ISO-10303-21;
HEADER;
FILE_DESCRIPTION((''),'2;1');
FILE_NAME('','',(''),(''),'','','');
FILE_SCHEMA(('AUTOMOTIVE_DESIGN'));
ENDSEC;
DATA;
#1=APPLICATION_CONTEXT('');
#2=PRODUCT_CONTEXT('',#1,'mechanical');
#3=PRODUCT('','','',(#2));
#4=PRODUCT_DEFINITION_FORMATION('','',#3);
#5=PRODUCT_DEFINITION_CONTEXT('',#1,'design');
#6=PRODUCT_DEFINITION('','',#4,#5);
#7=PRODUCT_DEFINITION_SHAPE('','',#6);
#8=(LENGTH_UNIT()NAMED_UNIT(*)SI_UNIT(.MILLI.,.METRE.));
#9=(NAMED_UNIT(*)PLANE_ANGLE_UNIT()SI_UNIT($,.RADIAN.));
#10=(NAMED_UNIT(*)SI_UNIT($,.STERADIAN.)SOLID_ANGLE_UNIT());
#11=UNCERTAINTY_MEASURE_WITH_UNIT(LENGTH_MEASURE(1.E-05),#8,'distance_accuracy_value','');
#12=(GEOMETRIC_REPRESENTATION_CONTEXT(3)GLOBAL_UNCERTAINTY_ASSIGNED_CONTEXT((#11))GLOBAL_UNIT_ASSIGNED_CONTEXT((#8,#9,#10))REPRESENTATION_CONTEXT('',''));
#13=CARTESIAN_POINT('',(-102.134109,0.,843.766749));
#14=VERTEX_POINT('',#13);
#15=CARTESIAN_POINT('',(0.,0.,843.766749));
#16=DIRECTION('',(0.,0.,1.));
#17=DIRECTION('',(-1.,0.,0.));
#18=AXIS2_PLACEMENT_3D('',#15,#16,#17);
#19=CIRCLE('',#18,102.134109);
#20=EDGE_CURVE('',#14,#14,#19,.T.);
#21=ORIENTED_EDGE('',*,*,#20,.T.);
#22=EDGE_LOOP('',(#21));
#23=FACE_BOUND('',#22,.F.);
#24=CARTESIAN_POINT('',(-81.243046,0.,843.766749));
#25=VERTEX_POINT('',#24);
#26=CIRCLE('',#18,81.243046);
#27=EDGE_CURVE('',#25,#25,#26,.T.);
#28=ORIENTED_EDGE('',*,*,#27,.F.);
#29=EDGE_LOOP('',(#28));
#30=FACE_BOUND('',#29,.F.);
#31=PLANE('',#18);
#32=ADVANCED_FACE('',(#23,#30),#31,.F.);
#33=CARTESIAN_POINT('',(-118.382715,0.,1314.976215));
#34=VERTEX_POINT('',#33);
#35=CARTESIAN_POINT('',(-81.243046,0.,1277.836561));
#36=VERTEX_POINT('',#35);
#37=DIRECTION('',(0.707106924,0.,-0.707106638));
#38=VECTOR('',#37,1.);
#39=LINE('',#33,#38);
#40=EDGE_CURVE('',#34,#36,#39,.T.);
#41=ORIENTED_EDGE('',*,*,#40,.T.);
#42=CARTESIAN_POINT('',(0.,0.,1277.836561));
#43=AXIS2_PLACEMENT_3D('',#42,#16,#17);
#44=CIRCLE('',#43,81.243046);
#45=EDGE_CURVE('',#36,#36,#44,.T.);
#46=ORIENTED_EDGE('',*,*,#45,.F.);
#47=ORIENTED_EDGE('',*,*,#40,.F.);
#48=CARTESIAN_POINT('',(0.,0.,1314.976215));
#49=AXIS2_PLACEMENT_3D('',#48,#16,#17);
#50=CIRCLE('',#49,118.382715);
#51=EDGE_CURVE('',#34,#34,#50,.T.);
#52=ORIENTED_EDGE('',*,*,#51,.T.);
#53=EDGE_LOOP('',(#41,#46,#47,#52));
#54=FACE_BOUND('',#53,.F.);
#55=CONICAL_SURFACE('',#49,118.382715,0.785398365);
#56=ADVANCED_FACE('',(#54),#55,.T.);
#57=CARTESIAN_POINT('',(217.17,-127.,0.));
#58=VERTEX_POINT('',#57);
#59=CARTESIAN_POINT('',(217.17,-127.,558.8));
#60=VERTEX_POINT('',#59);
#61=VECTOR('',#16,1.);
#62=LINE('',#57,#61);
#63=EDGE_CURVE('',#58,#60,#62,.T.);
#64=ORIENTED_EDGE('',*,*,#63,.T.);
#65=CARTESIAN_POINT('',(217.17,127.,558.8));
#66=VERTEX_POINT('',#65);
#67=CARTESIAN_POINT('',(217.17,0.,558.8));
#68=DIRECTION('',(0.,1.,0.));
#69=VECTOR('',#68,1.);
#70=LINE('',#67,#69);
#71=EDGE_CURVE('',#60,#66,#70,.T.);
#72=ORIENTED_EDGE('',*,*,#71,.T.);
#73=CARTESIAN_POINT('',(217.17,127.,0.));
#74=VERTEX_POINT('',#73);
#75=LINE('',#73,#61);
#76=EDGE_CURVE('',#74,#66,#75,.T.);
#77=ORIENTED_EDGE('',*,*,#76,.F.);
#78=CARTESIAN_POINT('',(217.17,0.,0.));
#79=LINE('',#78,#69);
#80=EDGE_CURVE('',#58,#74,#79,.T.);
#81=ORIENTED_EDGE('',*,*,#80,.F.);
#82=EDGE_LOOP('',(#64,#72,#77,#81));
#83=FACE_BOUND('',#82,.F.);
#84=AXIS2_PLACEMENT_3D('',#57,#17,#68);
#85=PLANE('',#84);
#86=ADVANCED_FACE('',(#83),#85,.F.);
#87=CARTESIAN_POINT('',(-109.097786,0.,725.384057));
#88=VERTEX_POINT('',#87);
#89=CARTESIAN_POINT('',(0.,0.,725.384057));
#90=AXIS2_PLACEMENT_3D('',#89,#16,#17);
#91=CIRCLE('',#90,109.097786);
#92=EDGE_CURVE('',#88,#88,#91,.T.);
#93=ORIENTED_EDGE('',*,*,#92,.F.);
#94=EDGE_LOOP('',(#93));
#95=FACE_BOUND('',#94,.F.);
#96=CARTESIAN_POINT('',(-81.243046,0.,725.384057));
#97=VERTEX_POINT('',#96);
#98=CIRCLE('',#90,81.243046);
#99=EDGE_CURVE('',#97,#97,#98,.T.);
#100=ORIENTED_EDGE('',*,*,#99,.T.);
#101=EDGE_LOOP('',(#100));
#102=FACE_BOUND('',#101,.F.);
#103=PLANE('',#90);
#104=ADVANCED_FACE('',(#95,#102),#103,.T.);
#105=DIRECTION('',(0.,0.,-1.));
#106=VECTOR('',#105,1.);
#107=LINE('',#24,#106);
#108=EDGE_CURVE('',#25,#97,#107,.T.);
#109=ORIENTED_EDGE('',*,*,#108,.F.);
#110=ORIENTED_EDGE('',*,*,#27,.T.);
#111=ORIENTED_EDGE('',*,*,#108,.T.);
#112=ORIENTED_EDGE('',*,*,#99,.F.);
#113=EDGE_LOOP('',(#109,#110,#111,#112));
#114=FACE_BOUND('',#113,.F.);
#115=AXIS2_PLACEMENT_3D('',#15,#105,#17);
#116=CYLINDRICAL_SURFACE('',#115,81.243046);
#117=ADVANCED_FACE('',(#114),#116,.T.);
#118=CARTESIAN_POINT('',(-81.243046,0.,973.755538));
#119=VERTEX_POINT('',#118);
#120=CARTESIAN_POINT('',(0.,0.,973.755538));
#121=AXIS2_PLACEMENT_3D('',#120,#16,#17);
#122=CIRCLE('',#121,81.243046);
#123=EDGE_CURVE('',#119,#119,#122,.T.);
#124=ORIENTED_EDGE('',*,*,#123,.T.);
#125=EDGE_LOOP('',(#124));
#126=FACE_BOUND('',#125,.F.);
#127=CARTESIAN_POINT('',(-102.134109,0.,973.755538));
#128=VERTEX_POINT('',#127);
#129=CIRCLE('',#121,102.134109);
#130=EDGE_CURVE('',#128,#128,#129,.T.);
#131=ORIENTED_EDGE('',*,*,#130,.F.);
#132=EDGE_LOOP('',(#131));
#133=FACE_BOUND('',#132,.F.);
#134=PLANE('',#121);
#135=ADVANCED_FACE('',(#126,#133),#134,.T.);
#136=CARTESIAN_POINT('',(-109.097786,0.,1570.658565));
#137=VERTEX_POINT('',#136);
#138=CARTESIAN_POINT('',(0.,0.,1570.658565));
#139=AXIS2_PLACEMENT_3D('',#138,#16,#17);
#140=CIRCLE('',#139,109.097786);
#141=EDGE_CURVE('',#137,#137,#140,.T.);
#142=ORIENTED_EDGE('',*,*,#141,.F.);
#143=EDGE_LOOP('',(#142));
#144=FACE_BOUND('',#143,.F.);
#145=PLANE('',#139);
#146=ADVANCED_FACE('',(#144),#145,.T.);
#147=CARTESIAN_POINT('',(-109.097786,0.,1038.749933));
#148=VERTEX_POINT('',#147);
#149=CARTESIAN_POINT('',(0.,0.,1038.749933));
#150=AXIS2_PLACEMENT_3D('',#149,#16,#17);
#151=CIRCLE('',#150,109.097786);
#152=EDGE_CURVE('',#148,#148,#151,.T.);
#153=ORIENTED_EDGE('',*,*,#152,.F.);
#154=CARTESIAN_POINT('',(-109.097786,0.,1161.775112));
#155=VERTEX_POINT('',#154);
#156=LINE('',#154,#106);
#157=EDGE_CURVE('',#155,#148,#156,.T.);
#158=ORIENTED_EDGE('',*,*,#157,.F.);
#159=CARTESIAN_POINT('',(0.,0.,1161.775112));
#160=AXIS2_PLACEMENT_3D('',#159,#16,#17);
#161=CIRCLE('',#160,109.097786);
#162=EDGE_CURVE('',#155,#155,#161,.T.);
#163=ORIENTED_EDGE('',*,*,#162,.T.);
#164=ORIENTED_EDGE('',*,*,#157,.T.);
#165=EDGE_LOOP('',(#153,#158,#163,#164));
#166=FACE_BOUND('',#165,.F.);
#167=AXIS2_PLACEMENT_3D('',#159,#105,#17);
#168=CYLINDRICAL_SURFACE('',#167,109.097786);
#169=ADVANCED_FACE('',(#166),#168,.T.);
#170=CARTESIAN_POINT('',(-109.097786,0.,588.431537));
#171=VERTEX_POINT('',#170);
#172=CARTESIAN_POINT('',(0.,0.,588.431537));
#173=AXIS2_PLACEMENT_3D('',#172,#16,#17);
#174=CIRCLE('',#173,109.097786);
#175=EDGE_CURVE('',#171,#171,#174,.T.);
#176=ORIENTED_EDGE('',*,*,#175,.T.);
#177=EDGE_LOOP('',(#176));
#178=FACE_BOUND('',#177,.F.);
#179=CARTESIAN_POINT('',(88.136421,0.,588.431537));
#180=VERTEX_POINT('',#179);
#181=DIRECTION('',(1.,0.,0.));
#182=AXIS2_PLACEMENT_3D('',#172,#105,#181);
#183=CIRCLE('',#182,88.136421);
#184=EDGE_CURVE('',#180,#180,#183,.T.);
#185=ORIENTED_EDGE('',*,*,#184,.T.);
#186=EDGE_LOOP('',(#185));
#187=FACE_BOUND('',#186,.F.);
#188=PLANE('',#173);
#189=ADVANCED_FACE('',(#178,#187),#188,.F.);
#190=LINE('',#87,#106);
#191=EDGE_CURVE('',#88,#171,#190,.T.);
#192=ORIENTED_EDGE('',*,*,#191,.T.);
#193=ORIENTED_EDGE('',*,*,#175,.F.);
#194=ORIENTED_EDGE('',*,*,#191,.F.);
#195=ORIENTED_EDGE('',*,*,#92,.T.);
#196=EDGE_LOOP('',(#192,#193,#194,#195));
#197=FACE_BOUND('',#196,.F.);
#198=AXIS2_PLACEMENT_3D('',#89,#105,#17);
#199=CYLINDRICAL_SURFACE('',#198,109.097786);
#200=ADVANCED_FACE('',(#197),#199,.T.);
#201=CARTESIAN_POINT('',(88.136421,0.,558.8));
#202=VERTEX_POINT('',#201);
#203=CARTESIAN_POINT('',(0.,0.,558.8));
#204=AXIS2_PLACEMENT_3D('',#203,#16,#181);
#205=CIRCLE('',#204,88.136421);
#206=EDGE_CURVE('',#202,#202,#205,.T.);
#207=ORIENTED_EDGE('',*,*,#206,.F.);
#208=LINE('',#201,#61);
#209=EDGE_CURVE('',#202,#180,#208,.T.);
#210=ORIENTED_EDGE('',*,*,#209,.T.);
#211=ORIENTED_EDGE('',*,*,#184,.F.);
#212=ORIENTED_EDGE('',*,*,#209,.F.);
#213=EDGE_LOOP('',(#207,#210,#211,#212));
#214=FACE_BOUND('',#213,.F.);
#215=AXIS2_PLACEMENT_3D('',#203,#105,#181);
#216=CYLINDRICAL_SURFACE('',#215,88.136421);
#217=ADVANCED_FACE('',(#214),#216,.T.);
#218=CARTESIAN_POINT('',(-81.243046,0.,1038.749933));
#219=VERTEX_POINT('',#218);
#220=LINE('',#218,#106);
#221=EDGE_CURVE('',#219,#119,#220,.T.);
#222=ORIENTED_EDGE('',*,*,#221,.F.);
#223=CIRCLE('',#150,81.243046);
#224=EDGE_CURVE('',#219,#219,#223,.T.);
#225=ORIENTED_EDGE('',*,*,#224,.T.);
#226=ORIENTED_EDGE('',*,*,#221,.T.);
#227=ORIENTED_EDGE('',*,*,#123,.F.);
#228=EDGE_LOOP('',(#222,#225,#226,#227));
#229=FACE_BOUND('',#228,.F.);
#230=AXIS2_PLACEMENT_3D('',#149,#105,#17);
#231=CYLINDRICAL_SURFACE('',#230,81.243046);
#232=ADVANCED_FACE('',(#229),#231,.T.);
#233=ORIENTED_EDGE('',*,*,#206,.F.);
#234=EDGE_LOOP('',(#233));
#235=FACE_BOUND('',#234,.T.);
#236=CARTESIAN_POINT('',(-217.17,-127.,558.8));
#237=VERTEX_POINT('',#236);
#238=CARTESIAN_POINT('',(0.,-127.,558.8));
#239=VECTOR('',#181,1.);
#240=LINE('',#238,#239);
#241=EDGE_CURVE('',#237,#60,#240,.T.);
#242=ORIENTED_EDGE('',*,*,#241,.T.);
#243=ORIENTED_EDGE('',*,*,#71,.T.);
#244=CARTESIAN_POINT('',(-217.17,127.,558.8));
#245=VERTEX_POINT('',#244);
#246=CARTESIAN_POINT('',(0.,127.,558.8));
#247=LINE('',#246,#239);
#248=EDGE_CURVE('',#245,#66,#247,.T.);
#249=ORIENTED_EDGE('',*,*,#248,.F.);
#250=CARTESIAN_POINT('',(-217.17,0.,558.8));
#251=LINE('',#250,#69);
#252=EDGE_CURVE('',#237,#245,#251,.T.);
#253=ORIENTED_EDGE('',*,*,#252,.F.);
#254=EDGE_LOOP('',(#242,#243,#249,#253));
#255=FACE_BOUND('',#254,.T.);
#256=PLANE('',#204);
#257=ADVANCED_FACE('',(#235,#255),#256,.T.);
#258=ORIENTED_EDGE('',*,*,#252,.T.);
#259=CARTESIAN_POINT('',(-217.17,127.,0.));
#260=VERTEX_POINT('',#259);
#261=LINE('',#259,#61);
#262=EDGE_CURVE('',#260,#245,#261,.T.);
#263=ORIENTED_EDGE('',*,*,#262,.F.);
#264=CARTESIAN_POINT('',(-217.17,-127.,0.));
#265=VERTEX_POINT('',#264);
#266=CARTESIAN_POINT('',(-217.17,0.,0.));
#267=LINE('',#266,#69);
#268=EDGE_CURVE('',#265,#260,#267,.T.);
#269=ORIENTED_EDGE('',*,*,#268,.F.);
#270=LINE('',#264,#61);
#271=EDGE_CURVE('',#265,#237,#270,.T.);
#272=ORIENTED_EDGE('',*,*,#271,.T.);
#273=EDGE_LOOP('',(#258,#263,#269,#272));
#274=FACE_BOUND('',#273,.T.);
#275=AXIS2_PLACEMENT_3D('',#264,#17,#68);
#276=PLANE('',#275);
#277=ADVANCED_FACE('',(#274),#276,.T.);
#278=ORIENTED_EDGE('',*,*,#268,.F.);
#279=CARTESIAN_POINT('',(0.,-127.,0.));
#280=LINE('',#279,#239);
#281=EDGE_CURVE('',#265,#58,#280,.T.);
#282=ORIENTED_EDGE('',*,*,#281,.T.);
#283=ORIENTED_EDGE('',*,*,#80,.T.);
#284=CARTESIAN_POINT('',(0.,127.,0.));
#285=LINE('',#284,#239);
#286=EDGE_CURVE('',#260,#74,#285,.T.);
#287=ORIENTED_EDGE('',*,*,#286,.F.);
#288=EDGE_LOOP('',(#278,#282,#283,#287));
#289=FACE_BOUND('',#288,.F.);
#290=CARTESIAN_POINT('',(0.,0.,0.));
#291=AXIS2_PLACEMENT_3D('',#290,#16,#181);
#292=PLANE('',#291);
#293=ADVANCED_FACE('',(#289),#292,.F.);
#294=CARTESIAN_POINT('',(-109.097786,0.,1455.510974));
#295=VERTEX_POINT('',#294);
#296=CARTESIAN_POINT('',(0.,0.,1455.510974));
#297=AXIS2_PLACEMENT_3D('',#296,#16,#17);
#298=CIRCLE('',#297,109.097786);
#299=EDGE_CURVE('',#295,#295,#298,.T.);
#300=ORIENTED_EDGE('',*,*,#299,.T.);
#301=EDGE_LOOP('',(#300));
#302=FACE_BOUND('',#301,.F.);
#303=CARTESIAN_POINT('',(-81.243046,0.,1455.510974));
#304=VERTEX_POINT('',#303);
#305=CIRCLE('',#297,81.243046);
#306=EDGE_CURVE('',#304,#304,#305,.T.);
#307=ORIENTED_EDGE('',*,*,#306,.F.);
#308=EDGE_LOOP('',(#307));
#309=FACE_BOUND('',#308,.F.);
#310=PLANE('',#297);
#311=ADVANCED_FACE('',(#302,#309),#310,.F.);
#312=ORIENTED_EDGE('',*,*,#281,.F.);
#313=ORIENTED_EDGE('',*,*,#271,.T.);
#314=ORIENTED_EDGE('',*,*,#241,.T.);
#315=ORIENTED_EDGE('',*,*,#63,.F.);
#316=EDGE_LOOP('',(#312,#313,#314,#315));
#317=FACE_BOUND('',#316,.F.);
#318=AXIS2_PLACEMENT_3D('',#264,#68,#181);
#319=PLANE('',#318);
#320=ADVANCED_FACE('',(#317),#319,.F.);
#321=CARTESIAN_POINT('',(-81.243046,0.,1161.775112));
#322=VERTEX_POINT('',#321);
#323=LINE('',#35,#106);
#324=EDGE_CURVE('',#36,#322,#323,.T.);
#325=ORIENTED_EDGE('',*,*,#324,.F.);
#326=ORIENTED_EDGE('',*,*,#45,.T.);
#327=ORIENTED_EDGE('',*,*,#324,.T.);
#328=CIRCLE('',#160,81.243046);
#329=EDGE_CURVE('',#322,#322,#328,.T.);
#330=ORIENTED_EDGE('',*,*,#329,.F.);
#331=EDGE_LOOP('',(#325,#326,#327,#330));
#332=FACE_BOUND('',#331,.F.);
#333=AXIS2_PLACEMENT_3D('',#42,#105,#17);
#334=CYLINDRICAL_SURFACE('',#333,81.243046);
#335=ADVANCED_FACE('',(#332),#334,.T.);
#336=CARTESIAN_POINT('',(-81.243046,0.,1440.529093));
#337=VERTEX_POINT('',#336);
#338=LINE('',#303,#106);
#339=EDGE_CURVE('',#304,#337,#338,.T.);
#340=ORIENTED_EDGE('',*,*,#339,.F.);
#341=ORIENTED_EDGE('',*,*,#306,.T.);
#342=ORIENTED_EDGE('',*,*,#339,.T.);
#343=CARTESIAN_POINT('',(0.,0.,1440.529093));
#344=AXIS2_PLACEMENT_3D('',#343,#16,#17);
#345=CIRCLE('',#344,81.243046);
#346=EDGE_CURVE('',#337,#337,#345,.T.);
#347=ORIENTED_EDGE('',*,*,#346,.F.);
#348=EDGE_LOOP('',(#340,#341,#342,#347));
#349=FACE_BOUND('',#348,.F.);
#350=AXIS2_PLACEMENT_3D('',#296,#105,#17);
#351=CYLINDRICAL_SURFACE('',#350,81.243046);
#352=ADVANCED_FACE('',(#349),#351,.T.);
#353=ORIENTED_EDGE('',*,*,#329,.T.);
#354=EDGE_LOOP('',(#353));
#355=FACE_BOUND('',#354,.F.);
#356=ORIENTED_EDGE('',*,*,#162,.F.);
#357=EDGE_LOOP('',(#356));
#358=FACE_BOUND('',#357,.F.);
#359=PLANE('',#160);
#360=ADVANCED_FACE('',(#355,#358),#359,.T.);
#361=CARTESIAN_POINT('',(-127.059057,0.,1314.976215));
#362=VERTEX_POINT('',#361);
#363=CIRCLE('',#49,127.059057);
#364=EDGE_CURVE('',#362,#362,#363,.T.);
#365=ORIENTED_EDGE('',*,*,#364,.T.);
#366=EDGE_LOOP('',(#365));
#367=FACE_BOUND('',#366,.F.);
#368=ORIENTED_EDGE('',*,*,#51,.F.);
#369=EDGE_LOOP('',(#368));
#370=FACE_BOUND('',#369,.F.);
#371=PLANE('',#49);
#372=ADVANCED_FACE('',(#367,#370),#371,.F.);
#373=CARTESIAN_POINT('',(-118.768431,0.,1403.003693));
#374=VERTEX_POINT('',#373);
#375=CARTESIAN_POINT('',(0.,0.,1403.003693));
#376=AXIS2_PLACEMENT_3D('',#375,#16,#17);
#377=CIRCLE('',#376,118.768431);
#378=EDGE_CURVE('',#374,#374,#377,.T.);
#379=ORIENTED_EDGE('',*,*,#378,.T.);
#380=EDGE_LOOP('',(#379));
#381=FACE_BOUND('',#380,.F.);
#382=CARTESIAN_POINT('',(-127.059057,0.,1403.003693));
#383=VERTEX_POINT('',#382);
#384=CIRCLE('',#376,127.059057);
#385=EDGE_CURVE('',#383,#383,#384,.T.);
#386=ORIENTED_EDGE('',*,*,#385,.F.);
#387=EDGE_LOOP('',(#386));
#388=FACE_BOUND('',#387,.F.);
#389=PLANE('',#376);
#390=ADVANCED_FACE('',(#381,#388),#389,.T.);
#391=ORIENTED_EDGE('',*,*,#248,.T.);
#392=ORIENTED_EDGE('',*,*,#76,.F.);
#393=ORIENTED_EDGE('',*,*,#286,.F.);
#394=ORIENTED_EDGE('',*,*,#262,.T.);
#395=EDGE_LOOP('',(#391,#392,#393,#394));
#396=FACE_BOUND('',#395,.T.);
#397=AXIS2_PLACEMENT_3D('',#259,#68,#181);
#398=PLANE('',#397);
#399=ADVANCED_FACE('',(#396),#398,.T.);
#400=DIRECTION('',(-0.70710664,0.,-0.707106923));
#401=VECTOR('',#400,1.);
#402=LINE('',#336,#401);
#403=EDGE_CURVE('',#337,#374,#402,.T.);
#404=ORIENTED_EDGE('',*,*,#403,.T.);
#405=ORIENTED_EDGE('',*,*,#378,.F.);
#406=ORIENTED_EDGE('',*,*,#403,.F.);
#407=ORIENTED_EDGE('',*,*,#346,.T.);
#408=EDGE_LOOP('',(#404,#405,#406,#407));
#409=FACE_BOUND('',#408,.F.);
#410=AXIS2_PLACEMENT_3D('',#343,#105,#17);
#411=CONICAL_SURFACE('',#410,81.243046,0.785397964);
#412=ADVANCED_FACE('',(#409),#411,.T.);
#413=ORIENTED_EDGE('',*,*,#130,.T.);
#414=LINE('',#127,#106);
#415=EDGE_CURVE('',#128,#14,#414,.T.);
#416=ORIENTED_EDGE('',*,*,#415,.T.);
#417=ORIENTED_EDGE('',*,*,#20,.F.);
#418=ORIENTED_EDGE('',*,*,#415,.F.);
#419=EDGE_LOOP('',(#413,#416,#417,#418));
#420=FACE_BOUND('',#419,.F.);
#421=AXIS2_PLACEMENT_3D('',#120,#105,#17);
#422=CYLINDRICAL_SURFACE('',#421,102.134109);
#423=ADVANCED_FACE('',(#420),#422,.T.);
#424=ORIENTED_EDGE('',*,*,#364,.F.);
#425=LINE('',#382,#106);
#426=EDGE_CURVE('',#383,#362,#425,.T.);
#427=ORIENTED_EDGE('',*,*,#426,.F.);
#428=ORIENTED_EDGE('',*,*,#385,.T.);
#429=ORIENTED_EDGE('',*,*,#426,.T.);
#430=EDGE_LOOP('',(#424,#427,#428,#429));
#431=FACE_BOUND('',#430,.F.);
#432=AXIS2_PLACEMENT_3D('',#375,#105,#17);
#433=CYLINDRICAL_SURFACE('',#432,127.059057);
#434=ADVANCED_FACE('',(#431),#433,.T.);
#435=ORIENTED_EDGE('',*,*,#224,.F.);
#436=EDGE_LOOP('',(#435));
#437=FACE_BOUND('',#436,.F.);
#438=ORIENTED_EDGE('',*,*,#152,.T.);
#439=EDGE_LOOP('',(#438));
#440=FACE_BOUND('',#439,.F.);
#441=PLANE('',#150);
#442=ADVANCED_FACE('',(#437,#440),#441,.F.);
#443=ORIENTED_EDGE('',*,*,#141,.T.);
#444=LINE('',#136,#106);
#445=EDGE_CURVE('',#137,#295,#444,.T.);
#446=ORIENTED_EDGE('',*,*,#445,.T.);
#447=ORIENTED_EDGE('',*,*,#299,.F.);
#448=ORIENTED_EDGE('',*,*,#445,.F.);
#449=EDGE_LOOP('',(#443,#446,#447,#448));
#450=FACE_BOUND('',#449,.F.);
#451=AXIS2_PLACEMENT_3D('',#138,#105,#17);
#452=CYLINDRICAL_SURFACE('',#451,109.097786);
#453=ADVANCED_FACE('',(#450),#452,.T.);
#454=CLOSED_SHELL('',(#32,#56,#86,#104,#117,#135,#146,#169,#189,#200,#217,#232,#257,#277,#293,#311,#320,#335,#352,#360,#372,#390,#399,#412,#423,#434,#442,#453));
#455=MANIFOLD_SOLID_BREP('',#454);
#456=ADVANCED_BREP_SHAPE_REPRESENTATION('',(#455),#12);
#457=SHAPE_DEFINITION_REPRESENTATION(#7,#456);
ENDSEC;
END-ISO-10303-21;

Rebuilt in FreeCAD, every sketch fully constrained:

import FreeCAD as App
import Part
import Sketcher
from FreeCAD import Vector
Q = App.Units.Quantity


def add_polygon(sketch, points):
    """Adds a closed chain of lines whose ends are joined by coincident constraints."""
    first, n = sketch.GeometryCount, len(points)
    for a, b in zip(points, points[1:] + points[:1]):
        sketch.addGeometry(Part.LineSegment(App.Vector(*a, 0), App.Vector(*b, 0)), False)
    for i in range(n):
        sketch.addConstraint(Sketcher.Constraint("Coincident", first + i, 2, first + (i + 1) % n, 1))

doc = App.newDocument("Part")
body = doc.addObject("PartDesign::Body", "Body")

# Sketch on XY plane
sketch1 = body.newObject("Sketcher::SketchObject", "Sketch")
sketch1.AttachmentSupport = (doc.getObject("XY_Plane"), [""])
sketch1.MapMode = "FlatFace"
add_polygon(sketch1, [(-217, 127), (-217, -127), (217, -127), (217, 127)])  # lines 0-3
sketch1.addConstraint([
    Sketcher.Constraint("Vertical", 0),
    Sketcher.Constraint("Horizontal", 1),
    Sketcher.Constraint("Vertical", 2),
    Sketcher.Constraint("Horizontal", 3),
    Sketcher.Constraint("Symmetric", 0, 2, 2, 2, -1, 1),
    Sketcher.Constraint("DistanceY", 0, 2, 0, 1, Q("10 in")),
    Sketcher.Constraint("DistanceX", 1, 1, 1, 2, Q("17.1 in")),
])
pad1 = body.newObject("PartDesign::Pad", "Pad")
pad1.Profile = sketch1
pad1.Length = Q("22 in")

# Sketch on XY plane
sketch2 = body.newObject("Sketcher::SketchObject", "Sketch001")
sketch2.AttachmentSupport = (doc.getObject("XY_Plane"), [""])
sketch2.MapMode = "FlatFace"
sketch2.AttachmentOffset = App.Placement(Vector(0, 0, 22 * 25.4), App.Rotation())
sketch2.addGeometry(Part.Circle(Vector(0, 0, 0), Vector(0, 0, 1), 88), False)
sketch2.addConstraint([
    Sketcher.Constraint("Coincident", 0, 3, -1, 1),
    Sketcher.Constraint("Diameter", 0, 176.272842),
])
pad2 = body.newObject("PartDesign::Pad", "Pad001")
pad2.Profile = sketch2
pad2.Length = Q("3 in")

# Sketch on XZ plane
sketch3 = body.newObject("Sketcher::SketchObject", "Sketch002")
sketch3.AttachmentSupport = (doc.getObject("XZ_Plane"), [""])
sketch3.MapMode = "FlatFace"
add_polygon(sketch3, [(-109, 588), (0, 588), (0, 1571), (-109, 1571), (-109, 1456), (-81, 1456), (-81, 1441), (-119, 1403), (-127, 1403), (-127, 1315), (-118, 1315), (-81, 1278), (-81, 1162), (-109, 1162), (-109, 1039), (-81, 1039), (-81, 974), (-102, 974), (-102, 844), (-81, 844), (-81, 725), (-109, 725)])  # lines 0-21
sketch3.addConstraint([
    Sketcher.Constraint("Horizontal", 0),
    Sketcher.Constraint("Vertical", 1),
    Sketcher.Constraint("Horizontal", 2),
    Sketcher.Constraint("Vertical", 3),
    Sketcher.Constraint("Horizontal", 4),
    Sketcher.Constraint("Vertical", 5),
    Sketcher.Constraint("Horizontal", 7),
    Sketcher.Constraint("Vertical", 8),
    Sketcher.Constraint("Horizontal", 9),
    Sketcher.Constraint("Vertical", 11),
    Sketcher.Constraint("Horizontal", 12),
    Sketcher.Constraint("Vertical", 13),
    Sketcher.Constraint("Horizontal", 14),
    Sketcher.Constraint("Vertical", 15),
    Sketcher.Constraint("Horizontal", 16),
    Sketcher.Constraint("Vertical", 17),
    Sketcher.Constraint("Horizontal", 18),
    Sketcher.Constraint("Vertical", 19),
    Sketcher.Constraint("Horizontal", 20),
    Sketcher.Constraint("Vertical", 21),
    Sketcher.Constraint("PointOnObject", 0, 2, -2),
    Sketcher.Constraint("Perpendicular", 6, 10),
    Sketcher.Constraint("Vertical", 5, 2, 10, 2),
    Sketcher.Constraint("Vertical", 3, 2, 12, 2),
    Sketcher.Constraint("Vertical", 11, 2, 14, 2),
    Sketcher.Constraint("Vertical", 15, 2, 18, 2),
    Sketcher.Constraint("Vertical", 13, 2, 20, 2),
    Sketcher.Constraint("Angle", 6, Q("-134.999989 deg")),
    Sketcher.Constraint("DistanceX", 4, 1, 4, 2, 27.85474),
    Sketcher.Constraint("DistanceX", 9, 1, 9, 2, 8.676342),
    Sketcher.Constraint("DistanceY", 3, 2, 3, 1, 115.147591),
    Sketcher.Constraint("DistanceY", 5, 2, 5, 1, 14.981881),
    Sketcher.Constraint("DistanceY", 8, 2, 8, 1, 88.027478),
    Sketcher.Constraint("DistanceY", 11, 2, 11, 1, 116.061449),
    Sketcher.Constraint("DistanceY", 13, 2, 13, 1, 123.025179),
    Sketcher.Constraint("DistanceY", 17, 2, 17, 1, 129.988789),
    Sketcher.Constraint("DistanceY", 21, 2, 21, 1, 136.95252),
    Sketcher.Constraint("DistanceY", 6, 2, 5, 2, 37.5254),
    Sketcher.Constraint("DistanceX", 0, 1, 0, 2, 109.097786),
    Sketcher.Constraint("DistanceX", 7, 2, 7, 1, 8.290626),
    Sketcher.Constraint("DistanceX", 16, 2, 16, 1, 20.891063),
    Sketcher.Constraint("DistanceY", 1, 1, 1, 2, 982.227028),
    Sketcher.Constraint("DistanceY", 15, 2, 15, 1, 64.994395),
    Sketcher.Constraint("DistanceY", -1, 1, 10, 2, 1277.836561),
])
revolution = body.newObject("PartDesign::Revolution", "Revolution")
revolution.Profile = sketch3
revolution.ReferenceAxis = (sketch3, ["V_Axis"])
revolution.Angle = 360

doc.recompute()
